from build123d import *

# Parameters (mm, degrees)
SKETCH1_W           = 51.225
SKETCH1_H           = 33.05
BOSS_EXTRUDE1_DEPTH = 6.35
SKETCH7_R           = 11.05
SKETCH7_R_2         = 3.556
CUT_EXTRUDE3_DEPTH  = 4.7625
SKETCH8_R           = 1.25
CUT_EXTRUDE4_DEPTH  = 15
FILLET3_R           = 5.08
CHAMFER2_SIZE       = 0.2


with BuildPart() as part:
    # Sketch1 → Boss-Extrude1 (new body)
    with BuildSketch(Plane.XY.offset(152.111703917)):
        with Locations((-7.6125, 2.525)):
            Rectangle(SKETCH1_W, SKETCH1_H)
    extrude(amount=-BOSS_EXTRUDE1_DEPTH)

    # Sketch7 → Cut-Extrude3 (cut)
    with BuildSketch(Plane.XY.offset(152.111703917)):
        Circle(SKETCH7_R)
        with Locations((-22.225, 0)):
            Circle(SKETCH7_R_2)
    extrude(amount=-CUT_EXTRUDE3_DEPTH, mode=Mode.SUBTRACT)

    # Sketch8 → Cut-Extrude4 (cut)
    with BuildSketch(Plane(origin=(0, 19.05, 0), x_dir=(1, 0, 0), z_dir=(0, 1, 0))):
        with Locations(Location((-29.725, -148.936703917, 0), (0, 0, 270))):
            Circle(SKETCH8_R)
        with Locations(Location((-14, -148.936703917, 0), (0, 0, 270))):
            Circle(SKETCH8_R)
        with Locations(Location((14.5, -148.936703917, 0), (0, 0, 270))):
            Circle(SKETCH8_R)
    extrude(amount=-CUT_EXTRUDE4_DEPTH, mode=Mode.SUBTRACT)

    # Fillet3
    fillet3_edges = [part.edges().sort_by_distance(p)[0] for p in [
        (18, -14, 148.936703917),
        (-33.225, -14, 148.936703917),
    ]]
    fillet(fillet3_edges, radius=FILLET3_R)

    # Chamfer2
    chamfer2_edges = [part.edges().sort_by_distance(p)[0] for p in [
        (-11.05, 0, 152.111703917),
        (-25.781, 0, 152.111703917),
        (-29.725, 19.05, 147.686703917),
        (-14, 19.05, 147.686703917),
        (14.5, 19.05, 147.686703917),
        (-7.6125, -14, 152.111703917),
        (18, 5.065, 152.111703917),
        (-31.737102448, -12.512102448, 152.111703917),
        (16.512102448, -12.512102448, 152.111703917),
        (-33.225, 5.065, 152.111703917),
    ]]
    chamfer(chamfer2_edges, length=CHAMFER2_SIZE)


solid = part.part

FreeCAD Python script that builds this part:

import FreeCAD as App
import Part
import Sketcher
from FreeCAD import Vector
Q = App.Units.Quantity


def edges_at(feature, points):
    """Names of the edges that pass closest to the given points."""
    edges = feature.Shape.Edges
    near = lambda p: min(range(len(edges)), key=lambda i: edges[i].distToShape(Part.Vertex(*p))[0])
    return sorted({f"Edge{near(p) + 1}" for p in points})

doc = App.newDocument("Part")
body = doc.addObject("PartDesign::Body", "Body")

sketch1 = body.newObject("Sketcher::SketchObject", "Sketch")
sketch1.AttachmentSupport = (doc.getObject("XY_Plane"), [""])
sketch1.MapMode = "FlatFace"
sketch1.AttachmentOffset = App.Placement(Vector(0, 0, 152.111704), App.Rotation())
sketch1.addGeometry(Part.LineSegment(Vector(-33, 19, 0), Vector(-33, -14, 0)), False)
sketch1.addGeometry(Part.LineSegment(Vector(-33, -14, 0), Vector(18, -14, 0)), False)
sketch1.addGeometry(Part.LineSegment(Vector(18, -14, 0), Vector(18, 19, 0)), False)
sketch1.addGeometry(Part.LineSegment(Vector(18, 19, 0), Vector(-33, 19, 0)), False)
sketch1.addConstraint(Sketcher.Constraint("Coincident", 0, 2, 1, 1))
sketch1.addConstraint(Sketcher.Constraint("Coincident", 1, 2, 2, 1))
sketch1.addConstraint(Sketcher.Constraint("Coincident", 2, 2, 3, 1))
sketch1.addConstraint(Sketcher.Constraint("Coincident", 3, 2, 0, 1))
sketch1.addConstraint(Sketcher.Constraint("Vertical", 0))
sketch1.addConstraint(Sketcher.Constraint("Horizontal", 1))
sketch1.addConstraint(Sketcher.Constraint("Vertical", 2))
sketch1.addConstraint(Sketcher.Constraint("Horizontal", 3))
sketch1.addConstraint(Sketcher.Constraint("DistanceY", 0, 2, -1, 1, Q("14 mm")))
sketch1.addConstraint(Sketcher.Constraint("DistanceX", -1, 1, 1, 2, Q("18 mm")))
sketch1.addConstraint(Sketcher.Constraint("DistanceY", 0, 2, 0, 1, Q("33.05 mm")))
sketch1.addConstraint(Sketcher.Constraint("DistanceX", 1, 1, 1, 2, Q("51.225 mm")))
pad1 = body.newObject("PartDesign::Pad", "Pad")
pad1.Profile = sketch1
pad1.Length = 6.35
pad1.Reversed = True

sketch2 = body.newObject("Sketcher::SketchObject", "Sketch001")
sketch2.AttachmentSupport = (doc.getObject("XY_Plane"), [""])
sketch2.MapMode = "FlatFace"
sketch2.AttachmentOffset = App.Placement(Vector(0, 0, 152.111704), App.Rotation())
sketch2.addGeometry(Part.Circle(Vector(0, 0, 0), Vector(0, 0, 1), 11.1), False)
sketch2.addGeometry(Part.Circle(Vector(-22.2, 0, 0), Vector(0, 0, 1), 3.6), False)
sketch2.addConstraint(Sketcher.Constraint("Coincident", 0, 3, -1, 1))
sketch2.addConstraint(Sketcher.Constraint("PointOnObject", 1, 3, -1))
sketch2.addConstraint(Sketcher.Constraint("Diameter", 0, Q("22.1 mm")))
sketch2.addConstraint(Sketcher.Constraint("Diameter", 1, Q("7.112 mm")))
sketch2.addConstraint(Sketcher.Constraint("DistanceX", 1, 3, -1, 1, Q("22.225 mm")))
pocket1 = body.newObject("PartDesign::Pocket", "Pocket")
pocket1.Profile = sketch2
pocket1.Length = 4.7625

sketch3 = body.newObject("Sketcher::SketchObject", "Sketch002")
sketch3.AttachmentSupport = (doc.getObject("XZ_Plane"), [""])
sketch3.MapMode = "FlatFace"
sketch3.AttachmentOffset = App.Placement(Vector(0, 0, -19.05), App.Rotation())
sketch3.addGeometry(Part.Circle(Vector(-29.7, 148.9, 0), Vector(0, 0, 1), 1.2), False)
sketch3.addGeometry(Part.Circle(Vector(-14, 148.9, 0), Vector(0, 0, 1), 1.2), False)
sketch3.addGeometry(Part.Circle(Vector(14.5, 148.9, 0), Vector(0, 0, 1), 1.2), False)
sketch3.addConstraint(Sketcher.Constraint("Equal", 0, 1))
sketch3.addConstraint(Sketcher.Constraint("Equal", 1, 2))
sketch3.addConstraint(Sketcher.Constraint("Horizontal", 0, 3, 1, 3))
sketch3.addConstraint(Sketcher.Constraint("Horizontal", 1, 3, 2, 3))
sketch3.addConstraint(Sketcher.Constraint("Diameter", 0, Q("2.5 mm")))
sketch3.addConstraint(Sketcher.Constraint("DistanceX", 1, 3, -1, 1, Q("14 mm")))
sketch3.addConstraint(Sketcher.Constraint("DistanceX", -1, 1, 2, 3, Q("14.5 mm")))
sketch3.addConstraint(Sketcher.Constraint("DistanceX", 0, 3, -1, 1, Q("29.725 mm")))
sketch3.addConstraint(Sketcher.Constraint("DistanceY", -1, 1, 0, 3, Q("148.936704 mm")))
pocket2 = body.newObject("PartDesign::Pocket", "Pocket001")
pocket2.Profile = sketch3
pocket2.Length = 15
pocket2.Reversed = True
doc.recompute()

fillet = body.newObject("PartDesign::Fillet", "Fillet")
fillet.Base = (pocket2, edges_at(pocket2, [(18, -14, 148.937), (-33.225, -14, 148.937)]))
fillet.Radius = 5.08
doc.recompute()

chamfer = body.newObject("PartDesign::Chamfer", "Chamfer")
chamfer.Base = (fillet, edges_at(fillet, [
    (-11.05, 0, 152.112),
    (-25.781, 0, 152.112),
    (-29.725, 19.05, 147.687),
    (-14, 19.05, 147.687),
    (14.5, 19.05, 147.687),
    (-7.612, -14, 152.112),
    (18, 5.065, 152.112),
    (-31.737, -12.512, 152.112),
    (16.512, -12.512, 152.112),
    (-33.225, 5.065, 152.112),
]))
chamfer.Size = 0.2

doc.recompute()
